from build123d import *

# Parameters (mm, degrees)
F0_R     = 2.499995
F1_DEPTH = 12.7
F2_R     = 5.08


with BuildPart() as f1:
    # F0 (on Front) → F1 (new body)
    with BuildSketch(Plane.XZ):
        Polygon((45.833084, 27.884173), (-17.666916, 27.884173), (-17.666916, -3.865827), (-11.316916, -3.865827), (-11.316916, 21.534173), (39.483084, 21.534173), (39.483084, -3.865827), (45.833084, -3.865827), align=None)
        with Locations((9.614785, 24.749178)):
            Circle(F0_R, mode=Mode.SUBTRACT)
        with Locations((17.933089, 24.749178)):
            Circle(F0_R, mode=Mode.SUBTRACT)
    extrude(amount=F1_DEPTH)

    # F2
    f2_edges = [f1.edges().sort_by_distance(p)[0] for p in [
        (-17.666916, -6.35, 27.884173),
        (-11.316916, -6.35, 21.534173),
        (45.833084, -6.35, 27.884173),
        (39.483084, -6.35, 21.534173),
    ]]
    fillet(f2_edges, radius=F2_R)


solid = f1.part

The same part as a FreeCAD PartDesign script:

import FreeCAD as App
import Part
import Sketcher

V = App.Vector
Q = App.Units.Quantity


def edges_at(feature, points):
    """Names of the edges that pass closest to the given points."""
    edges = feature.Shape.Edges
    near = lambda p: min(range(len(edges)), key=lambda i: edges[i].distToShape(Part.Vertex(*p))[0])
    return sorted({f"Edge{near(p) + 1}" for p in points})


def add_polygon(sketch, points):
    """Adds a closed chain of lines whose ends are joined by coincident constraints."""
    first, n = sketch.GeometryCount, len(points)
    for a, b in zip(points, points[1:] + points[:1]):
        sketch.addGeometry(Part.LineSegment(App.Vector(*a, 0), App.Vector(*b, 0)), False)
    for i in range(n):
        sketch.addConstraint(Sketcher.Constraint("Coincident", first + i, 2, first + (i + 1) % n, 1))

doc = App.newDocument("Part")
body = doc.addObject("PartDesign::Body", "Body")

# Sketch on XZ plane
sketch1 = body.newObject("Sketcher::SketchObject", "Sketch")
sketch1.AttachmentSupport = (doc.getObject("XZ_Plane"), [""])
sketch1.MapMode = "FlatFace"
add_polygon(sketch1, [(45.8, 27.9), (-17.7, 27.9), (-17.7, -3.9), (-11.3, -3.9), (-11.3, 21.5), (39.5, 21.5), (39.5, -3.9), (45.8, -3.9)])  # lines 0-7
sketch1.addGeometry(Part.Circle(V(9.6, 24.7, 0), V(0, 0, 1), 2.5), False)  # 8
sketch1.addGeometry(Part.Circle(V(17.9, 24.7, 0), V(0, 0, 1), 2.5), False)  # 9
sketch1.addConstraint([
    Sketcher.Constraint("Horizontal", 0),
    Sketcher.Constraint("Vertical", 1),
    Sketcher.Constraint("Horizontal", 2),
    Sketcher.Constraint("Vertical", 3),
    Sketcher.Constraint("Horizontal", 4),
    Sketcher.Constraint("Vertical", 5),
    Sketcher.Constraint("Horizontal", 6),
    Sketcher.Constraint("Vertical", 7),
    Sketcher.Constraint("Equal", 8, 9),
    Sketcher.Constraint("Horizontal", 8, 3, 9, 3),
    Sketcher.Constraint("Horizontal", 2, 2, 5, 2),
    Sketcher.Constraint("Equal", 2, 6),
    Sketcher.Constraint("DistanceX", 4, 1, 4, 2, Q("2 in")),
    Sketcher.Constraint("DistanceY", 3, 1, 3, 2, Q("1 in")),
    Sketcher.Constraint("DistanceX", 0, 2, 0, 1, Q("2.5 in")),
    Sketcher.Constraint("DistanceY", 1, 2, 1, 1, Q("1.25 in")),
    Sketcher.Constraint("Diameter", 8, Q("4.99999 mm")),
    Sketcher.Constraint("DistanceX", 0, 2, 8, 3, Q("27.281701 mm")),
    Sketcher.Constraint("DistanceY", -1, 1, 8, 3, Q("24.749178 mm")),
    Sketcher.Constraint("DistanceX", -1, 1, 9, 3, Q("17.933089 mm")),
    Sketcher.Constraint("DistanceX", -1, 1, 8, 3, Q("9.614785 mm")),
    Sketcher.Constraint("DistanceY", -1, 1, 0, 2, Q("27.884173 mm")),
])
pad1 = body.newObject("PartDesign::Pad", "Pad")
pad1.Profile = sketch1
pad1.Length = Q("0.5 in")
doc.recompute()

fillet = body.newObject("PartDesign::Fillet", "Fillet")
fillet.Base = (pad1, edges_at(pad1, [
    (-17.667, -6.35, 27.884),
    (-11.317, -6.35, 21.534),
    (45.833, -6.35, 27.884),
    (39.483, -6.35, 21.534),
]))
fillet.Radius = Q("0.2 in")

doc.recompute()
